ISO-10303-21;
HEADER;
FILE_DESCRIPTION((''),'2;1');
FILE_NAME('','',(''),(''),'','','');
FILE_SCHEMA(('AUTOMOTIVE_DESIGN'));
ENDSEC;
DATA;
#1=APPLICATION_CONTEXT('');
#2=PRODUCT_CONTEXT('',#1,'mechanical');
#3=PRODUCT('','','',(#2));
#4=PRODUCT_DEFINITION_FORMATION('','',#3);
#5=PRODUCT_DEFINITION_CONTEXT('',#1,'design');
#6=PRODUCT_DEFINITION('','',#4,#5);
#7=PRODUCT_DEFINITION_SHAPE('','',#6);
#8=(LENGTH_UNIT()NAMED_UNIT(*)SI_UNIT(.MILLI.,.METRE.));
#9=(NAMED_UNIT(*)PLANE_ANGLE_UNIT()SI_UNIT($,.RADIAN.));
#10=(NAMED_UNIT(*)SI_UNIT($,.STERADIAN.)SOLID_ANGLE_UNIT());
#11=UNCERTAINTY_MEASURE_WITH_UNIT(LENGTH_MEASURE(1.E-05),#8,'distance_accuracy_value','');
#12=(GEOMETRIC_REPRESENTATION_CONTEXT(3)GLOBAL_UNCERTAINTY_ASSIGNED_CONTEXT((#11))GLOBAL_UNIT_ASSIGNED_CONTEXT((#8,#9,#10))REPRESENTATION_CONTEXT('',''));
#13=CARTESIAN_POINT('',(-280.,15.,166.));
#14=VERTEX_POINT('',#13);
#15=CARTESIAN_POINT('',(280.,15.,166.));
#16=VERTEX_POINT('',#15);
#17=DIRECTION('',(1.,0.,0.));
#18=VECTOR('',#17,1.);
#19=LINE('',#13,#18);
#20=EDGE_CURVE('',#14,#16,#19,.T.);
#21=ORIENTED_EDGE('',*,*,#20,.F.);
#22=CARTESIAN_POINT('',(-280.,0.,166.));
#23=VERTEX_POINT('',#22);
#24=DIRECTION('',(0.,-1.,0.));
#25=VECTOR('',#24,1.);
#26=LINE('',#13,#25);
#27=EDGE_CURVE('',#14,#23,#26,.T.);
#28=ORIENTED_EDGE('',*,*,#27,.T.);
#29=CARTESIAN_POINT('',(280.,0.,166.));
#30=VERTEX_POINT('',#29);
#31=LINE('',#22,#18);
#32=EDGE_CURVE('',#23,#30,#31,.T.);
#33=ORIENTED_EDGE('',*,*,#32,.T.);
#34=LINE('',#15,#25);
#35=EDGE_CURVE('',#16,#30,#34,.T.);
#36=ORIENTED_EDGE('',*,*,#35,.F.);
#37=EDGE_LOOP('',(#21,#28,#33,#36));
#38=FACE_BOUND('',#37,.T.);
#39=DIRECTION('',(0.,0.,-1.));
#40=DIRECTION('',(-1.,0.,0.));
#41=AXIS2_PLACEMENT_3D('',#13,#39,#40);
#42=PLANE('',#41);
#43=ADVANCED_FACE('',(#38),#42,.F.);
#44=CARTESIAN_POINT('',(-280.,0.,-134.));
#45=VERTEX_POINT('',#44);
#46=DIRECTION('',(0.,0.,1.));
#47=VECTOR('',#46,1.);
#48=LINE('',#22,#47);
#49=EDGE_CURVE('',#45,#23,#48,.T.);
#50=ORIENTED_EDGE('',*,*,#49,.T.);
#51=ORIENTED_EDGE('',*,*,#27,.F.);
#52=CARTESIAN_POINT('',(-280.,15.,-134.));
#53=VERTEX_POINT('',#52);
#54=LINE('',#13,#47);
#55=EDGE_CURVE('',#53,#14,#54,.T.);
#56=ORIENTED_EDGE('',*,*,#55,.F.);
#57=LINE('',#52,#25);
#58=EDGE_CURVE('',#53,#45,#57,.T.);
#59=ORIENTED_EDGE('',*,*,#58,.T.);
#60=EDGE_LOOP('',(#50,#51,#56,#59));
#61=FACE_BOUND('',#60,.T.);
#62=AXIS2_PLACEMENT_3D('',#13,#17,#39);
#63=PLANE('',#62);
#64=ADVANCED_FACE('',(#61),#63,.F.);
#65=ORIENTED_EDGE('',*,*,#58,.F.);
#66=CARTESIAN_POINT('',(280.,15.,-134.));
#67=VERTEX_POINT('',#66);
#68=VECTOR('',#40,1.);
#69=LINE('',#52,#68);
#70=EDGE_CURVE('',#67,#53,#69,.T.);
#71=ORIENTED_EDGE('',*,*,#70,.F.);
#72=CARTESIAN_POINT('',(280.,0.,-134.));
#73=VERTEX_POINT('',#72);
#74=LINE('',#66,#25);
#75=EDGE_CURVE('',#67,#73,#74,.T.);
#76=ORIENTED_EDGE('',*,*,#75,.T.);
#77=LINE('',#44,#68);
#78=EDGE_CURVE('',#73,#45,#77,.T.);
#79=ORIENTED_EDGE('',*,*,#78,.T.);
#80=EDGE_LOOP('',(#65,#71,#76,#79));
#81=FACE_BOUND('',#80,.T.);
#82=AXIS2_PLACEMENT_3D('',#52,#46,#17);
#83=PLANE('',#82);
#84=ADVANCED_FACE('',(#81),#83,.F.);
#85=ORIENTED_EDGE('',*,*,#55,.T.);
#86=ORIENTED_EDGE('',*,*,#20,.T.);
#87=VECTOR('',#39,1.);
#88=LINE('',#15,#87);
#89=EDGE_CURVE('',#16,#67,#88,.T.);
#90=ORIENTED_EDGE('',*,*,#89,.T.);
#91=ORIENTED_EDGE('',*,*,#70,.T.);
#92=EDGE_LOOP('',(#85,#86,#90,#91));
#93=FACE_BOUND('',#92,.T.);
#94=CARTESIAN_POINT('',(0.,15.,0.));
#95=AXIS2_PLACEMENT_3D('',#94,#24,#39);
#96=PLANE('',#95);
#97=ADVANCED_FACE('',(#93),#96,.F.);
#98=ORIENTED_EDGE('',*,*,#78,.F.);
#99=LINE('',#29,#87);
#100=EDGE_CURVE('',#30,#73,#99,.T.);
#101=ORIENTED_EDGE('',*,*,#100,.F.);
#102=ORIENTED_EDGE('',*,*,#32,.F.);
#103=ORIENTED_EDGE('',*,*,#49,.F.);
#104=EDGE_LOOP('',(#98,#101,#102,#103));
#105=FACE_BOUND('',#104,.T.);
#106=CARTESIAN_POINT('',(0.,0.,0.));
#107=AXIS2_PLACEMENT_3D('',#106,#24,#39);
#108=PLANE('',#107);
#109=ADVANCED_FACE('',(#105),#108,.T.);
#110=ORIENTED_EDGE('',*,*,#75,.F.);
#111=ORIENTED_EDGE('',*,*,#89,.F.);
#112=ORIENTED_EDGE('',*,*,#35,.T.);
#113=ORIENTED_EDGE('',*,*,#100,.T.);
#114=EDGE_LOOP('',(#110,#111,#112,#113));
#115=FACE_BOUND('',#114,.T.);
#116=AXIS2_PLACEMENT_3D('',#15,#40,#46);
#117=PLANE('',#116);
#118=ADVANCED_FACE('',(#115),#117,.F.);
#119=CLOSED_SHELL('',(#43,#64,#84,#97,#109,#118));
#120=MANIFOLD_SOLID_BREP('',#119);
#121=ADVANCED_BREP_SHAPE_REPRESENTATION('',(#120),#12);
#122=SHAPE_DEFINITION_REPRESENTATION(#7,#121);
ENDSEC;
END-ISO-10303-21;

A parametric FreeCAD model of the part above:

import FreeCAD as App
import Part
import Sketcher
from FreeCAD import Vector

doc = App.newDocument("Part")
params = doc.addObject("Spreadsheet::Sheet", "Params")
for row, (alias, value) in enumerate([
    ("sketch1_width", "560 mm"),
    ("sketch1_height", "300 mm"),
    ("pad1_length", "15 mm"),
], start=1):
    params.set(f"A{row}", alias)
    params.set(f"B{row}", "=" + value)
    params.setAlias(f"B{row}", alias)

body = doc.addObject("PartDesign::Body", "Body")

sketch1 = body.newObject("Sketcher::SketchObject", "Sketch")
sketch1.AttachmentSupport = (doc.getObject("XZ_Plane"), [""])
sketch1.MapMode = "FlatFace"
sketch1.addGeometry([
    Part.LineSegment(Vector(-280, -134, 0), Vector(-280, 166, 0)),
    Part.LineSegment(Vector(-280, 166, 0), Vector(280, 166, 0)),
    Part.LineSegment(Vector(280, 166, 0), Vector(280, -134, 0)),
    Part.LineSegment(Vector(280, -134, 0), Vector(-280, -134, 0)),
], False)
sketch1.addConstraint([
    Sketcher.Constraint("Coincident", 0, 2, 1, 1),
    Sketcher.Constraint("Coincident", 1, 2, 2, 1),
    Sketcher.Constraint("Coincident", 2, 2, 3, 1),
    Sketcher.Constraint("Coincident", 3, 2, 0, 1),
    Sketcher.Constraint("Vertical", 0),
    Sketcher.Constraint("Horizontal", 1),
    Sketcher.Constraint("Vertical", 2),
    Sketcher.Constraint("Horizontal", 3),
    Sketcher.Constraint("DistanceX", 1, 1, 1, 2, 560.0),
    Sketcher.Constraint("DistanceY", 0, 1, 0, 2, 300.0),
    Sketcher.Constraint("DistanceX", 0, 2, -1, 1, 280.0),
    Sketcher.Constraint("DistanceY", -1, 1, 0, 2, 166.0),
])
sketch1.setExpression("Constraints[8]", "Params.sketch1_width")
sketch1.setExpression("Constraints[9]", "Params.sketch1_height")
pad1 = body.newObject("PartDesign::Pad", "Pad")
pad1.Profile = sketch1
pad1.setExpression("Length", "Params.pad1_length")
pad1.Reversed = True

doc.recompute()
